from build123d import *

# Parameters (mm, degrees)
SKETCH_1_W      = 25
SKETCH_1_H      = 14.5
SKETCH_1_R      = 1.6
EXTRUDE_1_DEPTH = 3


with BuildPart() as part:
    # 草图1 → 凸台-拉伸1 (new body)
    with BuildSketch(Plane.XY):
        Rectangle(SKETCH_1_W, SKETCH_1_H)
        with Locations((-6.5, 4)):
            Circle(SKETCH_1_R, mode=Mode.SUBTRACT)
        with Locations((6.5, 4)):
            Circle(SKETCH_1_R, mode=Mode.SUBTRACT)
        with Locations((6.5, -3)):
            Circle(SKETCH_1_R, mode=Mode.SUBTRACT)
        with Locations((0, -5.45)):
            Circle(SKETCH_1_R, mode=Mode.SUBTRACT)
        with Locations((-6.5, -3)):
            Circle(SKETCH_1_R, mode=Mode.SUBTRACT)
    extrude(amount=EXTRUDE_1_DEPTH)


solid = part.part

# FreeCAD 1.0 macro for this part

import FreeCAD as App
import Part
import Sketcher
Q = App.Units.Quantity

doc = App.newDocument("Part")
body = doc.addObject("PartDesign::Body", "Body")

sketch1 = body.newObject("Sketcher::SketchObject", "Sketch")
sketch1.AttachmentSupport = (doc.getObject("XY_Plane"), [""])
sketch1.MapMode = "FlatFace"
sketch1.addGeometry(Part.LineSegment(App.Vector(-12.5, 7.2, 0), App.Vector(-12.5, -7.2, 0)), False)
sketch1.addGeometry(Part.LineSegment(App.Vector(-12.5, -7.2, 0), App.Vector(12.5, -7.2, 0)), False)
sketch1.addGeometry(Part.LineSegment(App.Vector(12.5, -7.2, 0), App.Vector(12.5, 7.2, 0)), False)
sketch1.addGeometry(Part.LineSegment(App.Vector(12.5, 7.2, 0), App.Vector(-12.5, 7.2, 0)), False)
sketch1.addGeometry(Part.Circle(App.Vector(-6.5, -3, 0), App.Vector(0, 0, 1), 1.6), False)
sketch1.addGeometry(Part.Circle(App.Vector(0, -5.5, 0), App.Vector(0, 0, 1), 1.6), False)
sketch1.addGeometry(Part.Circle(App.Vector(6.5, -3, 0), App.Vector(0, 0, 1), 1.6), False)
sketch1.addGeometry(Part.Circle(App.Vector(-6.5, 4, 0), App.Vector(0, 0, 1), 1.6), False)
sketch1.addGeometry(Part.Circle(App.Vector(6.5, 4, 0), App.Vector(0, 0, 1), 1.6), False)
sketch1.addConstraint(Sketcher.Constraint("Coincident", 0, 2, 1, 1))
sketch1.addConstraint(Sketcher.Constraint("Coincident", 1, 2, 2, 1))
sketch1.addConstraint(Sketcher.Constraint("Coincident", 2, 2, 3, 1))
sketch1.addConstraint(Sketcher.Constraint("Coincident", 3, 2, 0, 1))
sketch1.addConstraint(Sketcher.Constraint("Vertical", 0))
sketch1.addConstraint(Sketcher.Constraint("Horizontal", 1))
sketch1.addConstraint(Sketcher.Constraint("Vertical", 2))
sketch1.addConstraint(Sketcher.Constraint("Horizontal", 3))
sketch1.addConstraint(Sketcher.Constraint("Equal", 4, 5))
sketch1.addConstraint(Sketcher.Constraint("Equal", 5, 6))
sketch1.addConstraint(Sketcher.Constraint("Equal", 6, 7))
sketch1.addConstraint(Sketcher.Constraint("Equal", 7, 8))
sketch1.addConstraint(Sketcher.Constraint("Symmetric", 0, 2, 2, 2, -1, 1))
sketch1.addConstraint(Sketcher.Constraint("Symmetric", 4, 3, 6, 3, -2))
sketch1.addConstraint(Sketcher.Constraint("Symmetric", 7, 3, 8, 3, -2))
sketch1.addConstraint(Sketcher.Constraint("PointOnObject", 5, 3, -2))
sketch1.addConstraint(Sketcher.Constraint("Vertical", 4, 3, 7, 3))
sketch1.addConstraint(Sketcher.Constraint("Diameter", 4, Q("3.2 mm")))
sketch1.addConstraint(Sketcher.Constraint("DistanceX", 1, 1, 1, 2, Q("25 mm")))
sketch1.addConstraint(Sketcher.Constraint("DistanceY", 0, 2, 0, 1, Q("14.5 mm")))
sketch1.addConstraint(Sketcher.Constraint("DistanceY", 4, 3, -1, 1, Q("3 mm")))
sketch1.addConstraint(Sketcher.Constraint("DistanceY", -1, 1, 7, 3, Q("4 mm")))
sketch1.addConstraint(Sketcher.Constraint("DistanceX", 4, 3, 6, 3, Q("13 mm")))
sketch1.addConstraint(Sketcher.Constraint("DistanceY", 0, 2, 5, 3, Q("1.8 mm")))
pad1 = body.newObject("PartDesign::Pad", "Pad")
pad1.Profile = sketch1
pad1.Length = 3

doc.recompute()
